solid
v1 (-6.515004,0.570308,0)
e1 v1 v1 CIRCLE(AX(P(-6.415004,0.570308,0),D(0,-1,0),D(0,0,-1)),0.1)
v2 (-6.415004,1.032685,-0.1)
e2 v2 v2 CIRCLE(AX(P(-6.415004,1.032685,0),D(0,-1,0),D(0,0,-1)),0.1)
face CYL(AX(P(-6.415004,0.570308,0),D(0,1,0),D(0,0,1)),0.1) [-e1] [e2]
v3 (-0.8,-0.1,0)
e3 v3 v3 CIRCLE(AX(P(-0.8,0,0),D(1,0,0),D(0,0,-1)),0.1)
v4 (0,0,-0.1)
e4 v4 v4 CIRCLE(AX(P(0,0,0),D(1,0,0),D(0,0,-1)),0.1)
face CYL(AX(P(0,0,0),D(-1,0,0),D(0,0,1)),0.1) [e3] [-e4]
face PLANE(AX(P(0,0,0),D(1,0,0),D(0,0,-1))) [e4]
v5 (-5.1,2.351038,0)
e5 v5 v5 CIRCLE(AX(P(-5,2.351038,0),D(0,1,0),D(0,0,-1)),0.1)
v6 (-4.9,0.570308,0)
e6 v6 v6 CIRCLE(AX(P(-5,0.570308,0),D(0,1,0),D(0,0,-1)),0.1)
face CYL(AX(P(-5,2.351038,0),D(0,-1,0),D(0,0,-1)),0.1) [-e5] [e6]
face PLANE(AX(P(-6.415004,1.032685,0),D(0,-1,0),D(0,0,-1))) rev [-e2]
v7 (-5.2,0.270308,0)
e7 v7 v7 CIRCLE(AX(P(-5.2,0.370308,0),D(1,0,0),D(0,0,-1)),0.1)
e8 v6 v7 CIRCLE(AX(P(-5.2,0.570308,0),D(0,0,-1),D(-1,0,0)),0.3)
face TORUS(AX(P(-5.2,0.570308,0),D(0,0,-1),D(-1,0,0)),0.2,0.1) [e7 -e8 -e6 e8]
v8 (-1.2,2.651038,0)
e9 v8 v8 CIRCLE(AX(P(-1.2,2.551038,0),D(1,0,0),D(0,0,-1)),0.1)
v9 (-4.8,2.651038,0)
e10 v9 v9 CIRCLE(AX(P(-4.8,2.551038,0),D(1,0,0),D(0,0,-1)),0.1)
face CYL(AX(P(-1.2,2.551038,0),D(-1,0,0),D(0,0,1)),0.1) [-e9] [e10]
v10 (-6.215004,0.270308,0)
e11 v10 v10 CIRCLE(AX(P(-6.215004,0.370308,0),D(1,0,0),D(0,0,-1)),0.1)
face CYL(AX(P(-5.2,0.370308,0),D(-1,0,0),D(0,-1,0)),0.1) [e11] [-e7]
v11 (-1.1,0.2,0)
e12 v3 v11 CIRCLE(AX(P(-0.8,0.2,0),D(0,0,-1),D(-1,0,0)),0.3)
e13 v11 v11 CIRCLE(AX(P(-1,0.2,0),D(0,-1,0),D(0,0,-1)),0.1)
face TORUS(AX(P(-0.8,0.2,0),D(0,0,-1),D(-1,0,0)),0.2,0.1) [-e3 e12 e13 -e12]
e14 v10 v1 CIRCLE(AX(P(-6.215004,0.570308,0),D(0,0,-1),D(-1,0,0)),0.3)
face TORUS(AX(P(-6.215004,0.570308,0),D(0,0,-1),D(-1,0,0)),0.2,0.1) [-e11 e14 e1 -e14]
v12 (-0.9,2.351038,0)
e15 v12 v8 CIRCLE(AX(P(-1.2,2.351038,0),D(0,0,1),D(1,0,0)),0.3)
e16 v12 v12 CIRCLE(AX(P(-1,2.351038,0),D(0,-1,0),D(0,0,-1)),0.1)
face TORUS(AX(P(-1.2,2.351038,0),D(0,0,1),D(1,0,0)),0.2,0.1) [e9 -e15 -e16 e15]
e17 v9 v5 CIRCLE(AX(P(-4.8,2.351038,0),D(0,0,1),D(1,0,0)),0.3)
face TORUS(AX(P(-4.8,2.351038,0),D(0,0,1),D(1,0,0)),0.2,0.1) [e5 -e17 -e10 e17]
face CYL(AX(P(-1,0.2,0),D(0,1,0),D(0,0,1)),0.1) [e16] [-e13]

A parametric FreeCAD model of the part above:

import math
import FreeCAD as App
import Part
import Sketcher

V = App.Vector
Q = App.Units.Quantity

doc = App.newDocument("Part")
body = doc.addObject("PartDesign::Body", "Body")

# Sketch on YZ plane
sketch1 = body.newObject("Sketcher::SketchObject", "Sketch")
sketch1.AttachmentSupport = (doc.getObject("YZ_Plane"), [""])
sketch1.MapMode = "FlatFace"
sketch1.addGeometry(Part.Circle(V(0, 0, 0), V(0, 0, 1), 0.1), False)
sketch1.addConstraint([
    Sketcher.Constraint("Coincident", 0, 3, -1, 1),
    Sketcher.Constraint("Diameter", 0, Q("0.2 mm")),
])

# Sketch on XY plane
sketch2 = body.newObject("Sketcher::SketchObject", "Sketch001")
sketch2.AttachmentSupport = (doc.getObject("XY_Plane"), [""])
sketch2.MapMode = "FlatFace"
sketch2.addGeometry([
    Part.LineSegment(V(0, 0, 0), V(-0.8, 0, 0)),  # 0
    Part.ArcOfCircle(Part.Circle(V(-0.8, 0.2, 0), V(0, 0, 1), 0.2), math.radians(-180), math.radians(-90)),  # 1
    Part.LineSegment(V(-1, 0.2, 0), V(-1, 2.351038, 0)),  # 2
    Part.ArcOfCircle(Part.Circle(V(-1.2, 2.351038, 0), V(0, 0, 1), 0.2), math.radians(0), math.radians(90)),  # 3
    Part.LineSegment(V(-1.2, 2.551038, 0), V(-4.8, 2.551038, 0)),  # 4
    Part.ArcOfCircle(Part.Circle(V(-4.8, 2.351038, 0), V(0, 0, 1), 0.2), math.radians(90), math.radians(180)),  # 5
    Part.LineSegment(V(-5, 2.351038, 0), V(-5, 0.570308, 0)),  # 6
    Part.ArcOfCircle(Part.Circle(V(-5.2, 0.570308, 0), V(0, 0, 1), 0.2), math.radians(-90), math.radians(0)),  # 7
    Part.LineSegment(V(-5.2, 0.370308, 0), V(-6.215004, 0.370308, 0)),  # 8
    Part.ArcOfCircle(Part.Circle(V(-6.215004, 0.570308, 0), V(0, 0, 1), 0.2), math.radians(180), math.radians(270)),  # 9
    Part.LineSegment(V(-6.415004, 0.570308, 0), V(-6.415004, 1.032685, 0)),  # 10
], False)
sketch2.addConstraint([
    Sketcher.Constraint("Tangent", 0, 2, 1, 2),
    Sketcher.Constraint("Tangent", 1, 1, 2, 1),
    Sketcher.Constraint("Tangent", 2, 2, 3, 1),
    Sketcher.Constraint("Tangent", 3, 2, 4, 1),
    Sketcher.Constraint("Tangent", 4, 2, 5, 1),
    Sketcher.Constraint("Tangent", 5, 2, 6, 1),
    Sketcher.Constraint("Tangent", 6, 2, 7, 2),
    Sketcher.Constraint("Tangent", 7, 1, 8, 1),
    Sketcher.Constraint("Tangent", 8, 2, 9, 2),
    Sketcher.Constraint("Tangent", 9, 1, 10, 1),
    Sketcher.Constraint("Horizontal", 0),
    Sketcher.Constraint("Vertical", 2),
    Sketcher.Constraint("Horizontal", 4),
    Sketcher.Constraint("Vertical", 6),
    Sketcher.Constraint("Horizontal", 8),
    Sketcher.Constraint("Vertical", 10),
    Sketcher.Constraint("Coincident", 0, 1, -1, 1),
    Sketcher.Constraint("Equal", 1, 3),
    Sketcher.Constraint("Equal", 3, 5),
    Sketcher.Constraint("Equal", 5, 7),
    Sketcher.Constraint("Equal", 7, 9),
    Sketcher.Constraint("Radius", 1, Q("0.2 mm")),
    Sketcher.Constraint("DistanceX", 0, 2, 0, 1, Q("0.8 mm")),
    Sketcher.Constraint("DistanceX", 4, 2, 4, 1, Q("3.6 mm")),
    Sketcher.Constraint("DistanceY", 2, 1, 2, 2, Q("2.151038 mm")),
    Sketcher.Constraint("DistanceY", 6, 2, 6, 1, Q("1.78073 mm")),
    Sketcher.Constraint("DistanceX", 8, 2, 8, 1, Q("1.015004 mm")),
    Sketcher.Constraint("DistanceY", 10, 1, 10, 2, Q("0.462376 mm")),
])
doc.recompute()

additivepipe = body.newObject("PartDesign::AdditivePipe", "AdditivePipe")
additivepipe.Profile = sketch1
additivepipe.Spine = (sketch2, ["Edge1", "Edge2", "Edge3", "Edge4", "Edge5", "Edge6", "Edge7", "Edge8", "Edge9", "Edge10", "Edge11"])

doc.recompute()
